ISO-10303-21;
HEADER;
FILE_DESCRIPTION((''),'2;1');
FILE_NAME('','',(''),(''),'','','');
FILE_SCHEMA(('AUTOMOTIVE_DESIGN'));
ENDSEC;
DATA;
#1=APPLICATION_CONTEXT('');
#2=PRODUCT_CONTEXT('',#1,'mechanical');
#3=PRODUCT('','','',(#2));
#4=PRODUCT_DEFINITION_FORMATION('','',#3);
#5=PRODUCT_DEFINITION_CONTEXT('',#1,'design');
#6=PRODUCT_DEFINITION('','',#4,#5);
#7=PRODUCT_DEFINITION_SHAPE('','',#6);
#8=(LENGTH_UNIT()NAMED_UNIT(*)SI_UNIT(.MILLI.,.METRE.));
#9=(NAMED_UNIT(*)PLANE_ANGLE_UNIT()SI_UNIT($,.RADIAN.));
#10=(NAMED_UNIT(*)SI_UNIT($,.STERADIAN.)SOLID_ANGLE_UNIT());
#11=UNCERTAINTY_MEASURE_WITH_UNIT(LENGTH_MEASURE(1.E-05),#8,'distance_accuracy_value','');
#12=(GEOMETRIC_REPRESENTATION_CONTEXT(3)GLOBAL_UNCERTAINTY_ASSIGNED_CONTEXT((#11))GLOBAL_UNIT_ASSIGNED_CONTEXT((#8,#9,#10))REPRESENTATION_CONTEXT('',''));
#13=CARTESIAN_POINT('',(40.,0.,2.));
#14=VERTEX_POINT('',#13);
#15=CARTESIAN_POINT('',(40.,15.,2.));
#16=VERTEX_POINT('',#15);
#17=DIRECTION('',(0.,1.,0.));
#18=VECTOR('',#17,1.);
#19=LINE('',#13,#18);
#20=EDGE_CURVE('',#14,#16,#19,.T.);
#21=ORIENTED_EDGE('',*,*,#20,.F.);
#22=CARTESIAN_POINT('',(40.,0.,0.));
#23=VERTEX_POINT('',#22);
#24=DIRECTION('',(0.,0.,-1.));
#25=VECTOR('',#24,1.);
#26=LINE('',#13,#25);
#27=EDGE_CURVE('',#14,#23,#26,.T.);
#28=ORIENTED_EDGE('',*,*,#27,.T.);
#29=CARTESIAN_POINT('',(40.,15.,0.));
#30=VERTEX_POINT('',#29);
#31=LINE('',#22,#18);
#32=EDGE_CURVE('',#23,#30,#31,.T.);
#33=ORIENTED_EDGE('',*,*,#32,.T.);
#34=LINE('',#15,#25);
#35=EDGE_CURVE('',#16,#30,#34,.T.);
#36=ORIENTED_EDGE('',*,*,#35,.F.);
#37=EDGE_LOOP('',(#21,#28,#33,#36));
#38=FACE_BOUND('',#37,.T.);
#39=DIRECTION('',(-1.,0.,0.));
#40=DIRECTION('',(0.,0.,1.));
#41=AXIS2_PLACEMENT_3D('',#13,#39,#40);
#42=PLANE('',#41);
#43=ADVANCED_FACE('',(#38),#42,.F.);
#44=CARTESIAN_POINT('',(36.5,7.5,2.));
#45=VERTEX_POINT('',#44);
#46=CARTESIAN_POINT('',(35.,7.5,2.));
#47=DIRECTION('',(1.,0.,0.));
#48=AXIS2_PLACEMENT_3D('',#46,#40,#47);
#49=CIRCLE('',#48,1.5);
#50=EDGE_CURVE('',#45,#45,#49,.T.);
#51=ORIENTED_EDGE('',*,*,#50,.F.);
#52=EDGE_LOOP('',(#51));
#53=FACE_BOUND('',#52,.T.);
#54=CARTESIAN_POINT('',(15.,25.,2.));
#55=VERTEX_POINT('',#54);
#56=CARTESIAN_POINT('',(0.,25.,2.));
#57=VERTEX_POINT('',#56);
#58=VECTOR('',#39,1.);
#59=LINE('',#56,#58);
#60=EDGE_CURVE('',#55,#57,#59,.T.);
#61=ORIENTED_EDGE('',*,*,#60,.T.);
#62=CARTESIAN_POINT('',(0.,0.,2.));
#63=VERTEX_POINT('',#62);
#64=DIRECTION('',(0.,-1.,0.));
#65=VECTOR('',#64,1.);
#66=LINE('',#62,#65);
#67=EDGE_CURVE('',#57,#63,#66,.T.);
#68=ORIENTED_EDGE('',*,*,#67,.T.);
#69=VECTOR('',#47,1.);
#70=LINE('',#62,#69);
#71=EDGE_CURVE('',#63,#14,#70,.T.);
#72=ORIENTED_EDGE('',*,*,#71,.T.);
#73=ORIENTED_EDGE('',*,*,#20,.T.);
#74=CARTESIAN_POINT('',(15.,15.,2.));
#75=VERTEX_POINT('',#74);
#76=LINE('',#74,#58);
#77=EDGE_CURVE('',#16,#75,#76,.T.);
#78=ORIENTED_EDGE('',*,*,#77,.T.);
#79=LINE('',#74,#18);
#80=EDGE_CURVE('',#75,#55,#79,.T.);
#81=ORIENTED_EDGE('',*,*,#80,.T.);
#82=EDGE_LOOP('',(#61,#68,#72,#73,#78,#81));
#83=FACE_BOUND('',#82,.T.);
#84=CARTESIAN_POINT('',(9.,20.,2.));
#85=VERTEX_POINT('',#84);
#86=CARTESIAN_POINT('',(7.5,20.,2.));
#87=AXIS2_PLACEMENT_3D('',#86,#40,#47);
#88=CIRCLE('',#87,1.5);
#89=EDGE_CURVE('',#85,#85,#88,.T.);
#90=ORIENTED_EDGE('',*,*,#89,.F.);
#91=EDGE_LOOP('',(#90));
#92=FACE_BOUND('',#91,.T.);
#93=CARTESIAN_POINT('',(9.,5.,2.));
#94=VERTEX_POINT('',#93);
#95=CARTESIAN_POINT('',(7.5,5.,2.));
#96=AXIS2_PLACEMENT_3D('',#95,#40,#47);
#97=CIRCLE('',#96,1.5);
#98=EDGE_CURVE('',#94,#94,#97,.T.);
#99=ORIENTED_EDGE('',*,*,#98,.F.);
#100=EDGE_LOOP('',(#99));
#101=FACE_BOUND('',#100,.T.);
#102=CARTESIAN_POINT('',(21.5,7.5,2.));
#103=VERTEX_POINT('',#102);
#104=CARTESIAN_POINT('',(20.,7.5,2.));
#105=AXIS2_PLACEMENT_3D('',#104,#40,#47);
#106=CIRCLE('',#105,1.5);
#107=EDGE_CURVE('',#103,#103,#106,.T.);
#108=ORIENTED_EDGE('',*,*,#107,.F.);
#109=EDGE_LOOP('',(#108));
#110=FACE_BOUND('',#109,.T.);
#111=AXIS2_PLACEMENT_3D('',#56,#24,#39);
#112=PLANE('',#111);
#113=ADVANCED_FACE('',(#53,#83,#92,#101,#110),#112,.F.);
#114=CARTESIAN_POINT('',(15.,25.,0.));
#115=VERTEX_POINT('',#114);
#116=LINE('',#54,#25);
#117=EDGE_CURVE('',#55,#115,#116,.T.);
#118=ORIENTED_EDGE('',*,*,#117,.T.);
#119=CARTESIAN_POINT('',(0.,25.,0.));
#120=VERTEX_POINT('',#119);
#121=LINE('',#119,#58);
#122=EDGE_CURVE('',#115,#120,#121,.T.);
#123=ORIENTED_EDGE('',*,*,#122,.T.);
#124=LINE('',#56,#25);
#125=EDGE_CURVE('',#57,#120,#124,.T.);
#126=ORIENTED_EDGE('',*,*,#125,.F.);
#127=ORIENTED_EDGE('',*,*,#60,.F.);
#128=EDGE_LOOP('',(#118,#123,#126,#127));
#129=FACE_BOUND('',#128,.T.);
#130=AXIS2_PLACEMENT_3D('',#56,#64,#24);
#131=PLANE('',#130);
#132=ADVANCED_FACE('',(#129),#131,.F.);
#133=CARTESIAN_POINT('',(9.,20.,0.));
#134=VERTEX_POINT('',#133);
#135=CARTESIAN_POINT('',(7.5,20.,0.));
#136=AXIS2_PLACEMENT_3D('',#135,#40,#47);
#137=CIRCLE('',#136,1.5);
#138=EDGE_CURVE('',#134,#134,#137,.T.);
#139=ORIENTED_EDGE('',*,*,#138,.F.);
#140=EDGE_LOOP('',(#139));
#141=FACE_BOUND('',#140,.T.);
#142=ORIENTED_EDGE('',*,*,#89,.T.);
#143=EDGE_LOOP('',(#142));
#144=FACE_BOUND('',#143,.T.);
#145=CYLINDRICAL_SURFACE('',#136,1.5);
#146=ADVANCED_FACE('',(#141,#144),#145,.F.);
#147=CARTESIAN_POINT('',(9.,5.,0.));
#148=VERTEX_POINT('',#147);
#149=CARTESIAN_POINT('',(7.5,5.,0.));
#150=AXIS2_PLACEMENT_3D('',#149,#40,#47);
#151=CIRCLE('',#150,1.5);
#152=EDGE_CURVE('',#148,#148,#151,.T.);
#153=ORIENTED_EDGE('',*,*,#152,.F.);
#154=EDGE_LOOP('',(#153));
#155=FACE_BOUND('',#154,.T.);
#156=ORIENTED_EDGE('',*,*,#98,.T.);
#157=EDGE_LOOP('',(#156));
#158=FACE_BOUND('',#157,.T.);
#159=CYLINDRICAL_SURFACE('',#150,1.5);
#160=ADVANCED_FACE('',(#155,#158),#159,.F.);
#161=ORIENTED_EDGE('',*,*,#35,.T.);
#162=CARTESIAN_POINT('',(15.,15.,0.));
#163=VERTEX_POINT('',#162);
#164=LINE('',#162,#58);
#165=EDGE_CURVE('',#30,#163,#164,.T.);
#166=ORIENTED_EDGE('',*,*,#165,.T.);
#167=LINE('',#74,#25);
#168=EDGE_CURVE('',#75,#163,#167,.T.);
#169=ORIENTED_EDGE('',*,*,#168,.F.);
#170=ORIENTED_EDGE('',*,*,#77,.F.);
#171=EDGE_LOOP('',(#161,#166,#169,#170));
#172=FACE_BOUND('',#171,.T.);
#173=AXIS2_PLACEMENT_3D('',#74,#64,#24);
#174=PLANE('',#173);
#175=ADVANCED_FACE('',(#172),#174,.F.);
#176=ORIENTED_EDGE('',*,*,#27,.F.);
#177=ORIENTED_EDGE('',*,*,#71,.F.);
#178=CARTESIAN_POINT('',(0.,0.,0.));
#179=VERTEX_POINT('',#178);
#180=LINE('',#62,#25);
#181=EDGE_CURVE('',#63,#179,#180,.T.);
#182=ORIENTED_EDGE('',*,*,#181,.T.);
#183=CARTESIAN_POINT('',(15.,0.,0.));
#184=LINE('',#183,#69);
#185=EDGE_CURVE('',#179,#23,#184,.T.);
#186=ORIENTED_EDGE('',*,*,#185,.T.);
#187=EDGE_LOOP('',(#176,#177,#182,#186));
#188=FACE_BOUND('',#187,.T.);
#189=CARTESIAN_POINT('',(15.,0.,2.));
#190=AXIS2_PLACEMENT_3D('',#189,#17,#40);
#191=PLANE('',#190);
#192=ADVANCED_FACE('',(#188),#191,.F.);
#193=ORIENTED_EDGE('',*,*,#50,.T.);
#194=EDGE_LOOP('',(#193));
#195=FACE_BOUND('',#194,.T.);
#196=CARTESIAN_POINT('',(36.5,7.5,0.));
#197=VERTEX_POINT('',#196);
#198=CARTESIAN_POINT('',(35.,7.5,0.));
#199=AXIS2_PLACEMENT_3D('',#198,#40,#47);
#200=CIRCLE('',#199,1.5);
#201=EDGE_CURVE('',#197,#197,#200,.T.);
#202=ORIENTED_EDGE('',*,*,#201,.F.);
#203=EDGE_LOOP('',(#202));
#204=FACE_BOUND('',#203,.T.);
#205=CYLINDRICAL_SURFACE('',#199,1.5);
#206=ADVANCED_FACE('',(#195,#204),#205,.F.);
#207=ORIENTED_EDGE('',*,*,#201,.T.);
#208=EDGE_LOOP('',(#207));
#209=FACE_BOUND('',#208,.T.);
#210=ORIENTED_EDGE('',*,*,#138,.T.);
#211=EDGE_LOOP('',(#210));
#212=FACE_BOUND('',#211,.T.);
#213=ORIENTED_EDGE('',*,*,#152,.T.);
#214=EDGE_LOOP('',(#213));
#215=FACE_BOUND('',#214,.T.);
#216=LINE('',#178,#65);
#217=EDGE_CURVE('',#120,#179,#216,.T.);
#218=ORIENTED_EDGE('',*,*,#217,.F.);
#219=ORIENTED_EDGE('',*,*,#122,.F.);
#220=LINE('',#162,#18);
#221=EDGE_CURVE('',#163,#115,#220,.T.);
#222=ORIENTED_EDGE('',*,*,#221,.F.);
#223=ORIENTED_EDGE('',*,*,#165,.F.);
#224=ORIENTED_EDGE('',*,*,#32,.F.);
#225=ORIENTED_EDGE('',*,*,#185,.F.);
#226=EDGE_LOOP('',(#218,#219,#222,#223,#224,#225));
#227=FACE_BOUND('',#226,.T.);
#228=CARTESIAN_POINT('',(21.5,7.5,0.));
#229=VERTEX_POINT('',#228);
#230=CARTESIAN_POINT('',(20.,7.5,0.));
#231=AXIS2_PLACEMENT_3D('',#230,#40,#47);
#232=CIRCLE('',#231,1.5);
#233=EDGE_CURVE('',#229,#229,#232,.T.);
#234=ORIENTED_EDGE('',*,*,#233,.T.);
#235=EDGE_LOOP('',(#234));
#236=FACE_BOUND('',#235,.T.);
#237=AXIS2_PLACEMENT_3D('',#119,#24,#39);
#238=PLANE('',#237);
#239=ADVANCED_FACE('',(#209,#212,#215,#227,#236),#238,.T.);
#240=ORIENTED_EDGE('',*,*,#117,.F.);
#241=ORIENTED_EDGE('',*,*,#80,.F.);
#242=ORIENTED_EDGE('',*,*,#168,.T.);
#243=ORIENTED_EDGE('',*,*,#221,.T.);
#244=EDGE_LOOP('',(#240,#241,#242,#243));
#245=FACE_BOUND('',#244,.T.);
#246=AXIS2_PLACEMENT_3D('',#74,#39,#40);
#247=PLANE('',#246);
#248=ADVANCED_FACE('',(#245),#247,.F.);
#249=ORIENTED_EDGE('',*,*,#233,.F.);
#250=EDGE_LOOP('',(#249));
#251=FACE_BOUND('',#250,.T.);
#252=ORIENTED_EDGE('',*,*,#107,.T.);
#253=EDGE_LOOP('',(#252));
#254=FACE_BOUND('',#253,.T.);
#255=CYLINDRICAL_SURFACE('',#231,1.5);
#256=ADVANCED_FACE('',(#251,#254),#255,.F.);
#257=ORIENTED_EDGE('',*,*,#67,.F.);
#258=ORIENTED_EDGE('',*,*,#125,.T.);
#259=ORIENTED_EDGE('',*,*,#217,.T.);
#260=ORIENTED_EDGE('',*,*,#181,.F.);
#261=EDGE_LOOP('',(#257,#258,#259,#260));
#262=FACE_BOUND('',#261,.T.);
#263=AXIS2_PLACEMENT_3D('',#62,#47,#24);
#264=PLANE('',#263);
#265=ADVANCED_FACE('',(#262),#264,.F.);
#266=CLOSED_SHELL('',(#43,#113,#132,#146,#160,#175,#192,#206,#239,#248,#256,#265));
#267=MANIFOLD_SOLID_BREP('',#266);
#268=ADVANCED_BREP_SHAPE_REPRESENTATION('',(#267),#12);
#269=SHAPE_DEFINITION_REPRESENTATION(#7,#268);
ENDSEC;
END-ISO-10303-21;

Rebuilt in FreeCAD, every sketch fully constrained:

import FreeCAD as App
import Part
import Sketcher
Q = App.Units.Quantity


def add_polygon(sketch, points):
    """Adds a closed chain of lines whose ends are joined by coincident constraints."""
    first, n = sketch.GeometryCount, len(points)
    for a, b in zip(points, points[1:] + points[:1]):
        sketch.addGeometry(Part.LineSegment(App.Vector(*a, 0), App.Vector(*b, 0)), False)
    for i in range(n):
        sketch.addConstraint(Sketcher.Constraint("Coincident", first + i, 2, first + (i + 1) % n, 1))

doc = App.newDocument("Part")
body = doc.addObject("PartDesign::Body", "Body")

# Sketch on XY plane
sketch1 = body.newObject("Sketcher::SketchObject", "Sketch")
sketch1.AttachmentSupport = (doc.getObject("XY_Plane"), [""])
sketch1.MapMode = "FlatFace"
add_polygon(sketch1, [(0, 0), (40, 0), (40, 15), (15, 15), (15, 25), (0, 25)])  # lines 0-5
sketch1.addConstraint(Sketcher.Constraint("Horizontal", 0))
sketch1.addConstraint(Sketcher.Constraint("Vertical", 1))
sketch1.addConstraint(Sketcher.Constraint("Horizontal", 2))
sketch1.addConstraint(Sketcher.Constraint("Vertical", 3))
sketch1.addConstraint(Sketcher.Constraint("Horizontal", 4))
sketch1.addConstraint(Sketcher.Constraint("Vertical", 5))
sketch1.addConstraint(Sketcher.Constraint("Coincident", 5, 2, -1, 1))
sketch1.addConstraint(Sketcher.Constraint("Equal", 4, 1))
sketch1.addConstraint(Sketcher.Constraint("Equal", 2, 5))
sketch1.addConstraint(Sketcher.Constraint("DistanceX", 0, 1, 0, 2, Q("40 mm")))
sketch1.addConstraint(Sketcher.Constraint("DistanceX", 2, 2, 2, 1, Q("25 mm")))
pad1 = body.newObject("PartDesign::Pad", "Pad")
pad1.Profile = sketch1
pad1.Length = 2

# Sketch on XY plane
sketch2 = body.newObject("Sketcher::SketchObject", "Sketch001")
sketch2.AttachmentSupport = (doc.getObject("XY_Plane"), [""])
sketch2.MapMode = "FlatFace"
sketch2.AttachmentOffset = App.Placement(App.Vector(0, 0, 2), App.Rotation())
sketch2.addGeometry(Part.Circle(App.Vector(7.5, 20, 0), App.Vector(0, 0, 1), 1.5), False)
sketch2.addGeometry(Part.Circle(App.Vector(7.5, 5, 0), App.Vector(0, 0, 1), 1.5), False)
sketch2.addGeometry(Part.Circle(App.Vector(20, 7.5, 0), App.Vector(0, 0, 1), 1.5), False)
sketch2.addGeometry(Part.Circle(App.Vector(35, 7.5, 0), App.Vector(0, 0, 1), 1.5), False)
sketch2.addConstraint(Sketcher.Constraint("Equal", 0, 1))
sketch2.addConstraint(Sketcher.Constraint("Equal", 1, 2))
sketch2.addConstraint(Sketcher.Constraint("Equal", 2, 3))
sketch2.addConstraint(Sketcher.Constraint("Horizontal", 2, 3, 3, 3))
sketch2.addConstraint(Sketcher.Constraint("Vertical", 0, 3, 1, 3))
sketch2.addConstraint(Sketcher.Constraint("Diameter", 0, Q("3 mm")))
sketch2.addConstraint(Sketcher.Constraint("DistanceY", -1, 1, 0, 3, Q("20 mm")))
sketch2.addConstraint(Sketcher.Constraint("DistanceY", -1, 1, 1, 3, Q("5 mm")))
sketch2.addConstraint(Sketcher.Constraint("DistanceX", -1, 1, 2, 3, Q("20 mm")))
sketch2.addConstraint(Sketcher.Constraint("DistanceX", -1, 1, 3, 3, Q("35 mm")))
sketch2.addConstraint(Sketcher.Constraint("DistanceX", -1, 1, 0, 3, Q("7.5 mm")))
sketch2.addConstraint(Sketcher.Constraint("DistanceY", -1, 1, 2, 3, Q("7.5 mm")))
pocket1 = body.newObject("PartDesign::Pocket", "Pocket")
pocket1.Profile = sketch2
pocket1.Type = "ThroughAll"

doc.recompute()
